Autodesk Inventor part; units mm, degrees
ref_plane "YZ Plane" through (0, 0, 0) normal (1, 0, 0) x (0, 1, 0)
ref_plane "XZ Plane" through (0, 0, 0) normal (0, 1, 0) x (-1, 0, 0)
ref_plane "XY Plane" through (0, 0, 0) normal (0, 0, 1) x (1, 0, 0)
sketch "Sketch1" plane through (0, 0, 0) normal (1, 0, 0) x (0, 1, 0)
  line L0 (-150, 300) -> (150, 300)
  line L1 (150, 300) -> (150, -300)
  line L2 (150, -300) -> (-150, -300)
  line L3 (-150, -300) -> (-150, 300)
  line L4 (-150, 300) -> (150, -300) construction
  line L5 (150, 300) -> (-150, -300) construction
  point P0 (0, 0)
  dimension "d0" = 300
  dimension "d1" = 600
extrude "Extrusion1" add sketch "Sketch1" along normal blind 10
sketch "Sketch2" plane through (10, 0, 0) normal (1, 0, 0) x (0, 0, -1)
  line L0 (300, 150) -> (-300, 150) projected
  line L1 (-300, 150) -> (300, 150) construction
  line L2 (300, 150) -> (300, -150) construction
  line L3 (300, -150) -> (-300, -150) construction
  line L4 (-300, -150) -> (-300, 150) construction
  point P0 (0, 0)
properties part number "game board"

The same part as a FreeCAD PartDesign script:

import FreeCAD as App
import Part
import Sketcher

V = App.Vector


def add_polygon(sketch, points):
    """Adds a closed chain of lines whose ends are joined by coincident constraints."""
    first, n = sketch.GeometryCount, len(points)
    for a, b in zip(points, points[1:] + points[:1]):
        sketch.addGeometry(Part.LineSegment(App.Vector(*a, 0), App.Vector(*b, 0)), False)
    for i in range(n):
        sketch.addConstraint(Sketcher.Constraint("Coincident", first + i, 2, first + (i + 1) % n, 1))

doc = App.newDocument("Part")
params = doc.addObject("Spreadsheet::Sheet", "Params")
for row, (alias, value) in enumerate([
    ("sketch1_width", "300 mm"),
    ("sketch1_height", "600 mm"),
    ("pad1_length", "10 mm"),
], start=1):
    params.set(f"A{row}", alias)
    params.set(f"B{row}", "=" + value)
    params.setAlias(f"B{row}", alias)

body = doc.addObject("PartDesign::Body", "Body")

# Sketch on YZ plane
sketch1 = body.newObject("Sketcher::SketchObject", "Sketch")
sketch1.AttachmentSupport = (doc.getObject("YZ_Plane"), [""])
sketch1.MapMode = "FlatFace"
add_polygon(sketch1, [(150, 300), (-150, 300), (-150, -300), (150, -300)])  # lines 0-3
sketch1.addConstraint([
    Sketcher.Constraint("Horizontal", 0),
    Sketcher.Constraint("Vertical", 1),
    Sketcher.Constraint("Horizontal", 2),
    Sketcher.Constraint("Vertical", 3),
    Sketcher.Constraint("Symmetric", 0, 2, 2, 2, -1, 1),
    Sketcher.Constraint("DistanceX", 0, 2, 0, 1, 300.0),
    Sketcher.Constraint("DistanceY", 1, 2, 1, 1, 600.0),
])
sketch1.setExpression("Constraints[9]", "Params.sketch1_width")
sketch1.setExpression("Constraints[10]", "Params.sketch1_height")
pad1 = body.newObject("PartDesign::Pad", "Pad")
pad1.Profile = sketch1
pad1.setExpression("Length", "Params.pad1_length")

doc.recompute()
